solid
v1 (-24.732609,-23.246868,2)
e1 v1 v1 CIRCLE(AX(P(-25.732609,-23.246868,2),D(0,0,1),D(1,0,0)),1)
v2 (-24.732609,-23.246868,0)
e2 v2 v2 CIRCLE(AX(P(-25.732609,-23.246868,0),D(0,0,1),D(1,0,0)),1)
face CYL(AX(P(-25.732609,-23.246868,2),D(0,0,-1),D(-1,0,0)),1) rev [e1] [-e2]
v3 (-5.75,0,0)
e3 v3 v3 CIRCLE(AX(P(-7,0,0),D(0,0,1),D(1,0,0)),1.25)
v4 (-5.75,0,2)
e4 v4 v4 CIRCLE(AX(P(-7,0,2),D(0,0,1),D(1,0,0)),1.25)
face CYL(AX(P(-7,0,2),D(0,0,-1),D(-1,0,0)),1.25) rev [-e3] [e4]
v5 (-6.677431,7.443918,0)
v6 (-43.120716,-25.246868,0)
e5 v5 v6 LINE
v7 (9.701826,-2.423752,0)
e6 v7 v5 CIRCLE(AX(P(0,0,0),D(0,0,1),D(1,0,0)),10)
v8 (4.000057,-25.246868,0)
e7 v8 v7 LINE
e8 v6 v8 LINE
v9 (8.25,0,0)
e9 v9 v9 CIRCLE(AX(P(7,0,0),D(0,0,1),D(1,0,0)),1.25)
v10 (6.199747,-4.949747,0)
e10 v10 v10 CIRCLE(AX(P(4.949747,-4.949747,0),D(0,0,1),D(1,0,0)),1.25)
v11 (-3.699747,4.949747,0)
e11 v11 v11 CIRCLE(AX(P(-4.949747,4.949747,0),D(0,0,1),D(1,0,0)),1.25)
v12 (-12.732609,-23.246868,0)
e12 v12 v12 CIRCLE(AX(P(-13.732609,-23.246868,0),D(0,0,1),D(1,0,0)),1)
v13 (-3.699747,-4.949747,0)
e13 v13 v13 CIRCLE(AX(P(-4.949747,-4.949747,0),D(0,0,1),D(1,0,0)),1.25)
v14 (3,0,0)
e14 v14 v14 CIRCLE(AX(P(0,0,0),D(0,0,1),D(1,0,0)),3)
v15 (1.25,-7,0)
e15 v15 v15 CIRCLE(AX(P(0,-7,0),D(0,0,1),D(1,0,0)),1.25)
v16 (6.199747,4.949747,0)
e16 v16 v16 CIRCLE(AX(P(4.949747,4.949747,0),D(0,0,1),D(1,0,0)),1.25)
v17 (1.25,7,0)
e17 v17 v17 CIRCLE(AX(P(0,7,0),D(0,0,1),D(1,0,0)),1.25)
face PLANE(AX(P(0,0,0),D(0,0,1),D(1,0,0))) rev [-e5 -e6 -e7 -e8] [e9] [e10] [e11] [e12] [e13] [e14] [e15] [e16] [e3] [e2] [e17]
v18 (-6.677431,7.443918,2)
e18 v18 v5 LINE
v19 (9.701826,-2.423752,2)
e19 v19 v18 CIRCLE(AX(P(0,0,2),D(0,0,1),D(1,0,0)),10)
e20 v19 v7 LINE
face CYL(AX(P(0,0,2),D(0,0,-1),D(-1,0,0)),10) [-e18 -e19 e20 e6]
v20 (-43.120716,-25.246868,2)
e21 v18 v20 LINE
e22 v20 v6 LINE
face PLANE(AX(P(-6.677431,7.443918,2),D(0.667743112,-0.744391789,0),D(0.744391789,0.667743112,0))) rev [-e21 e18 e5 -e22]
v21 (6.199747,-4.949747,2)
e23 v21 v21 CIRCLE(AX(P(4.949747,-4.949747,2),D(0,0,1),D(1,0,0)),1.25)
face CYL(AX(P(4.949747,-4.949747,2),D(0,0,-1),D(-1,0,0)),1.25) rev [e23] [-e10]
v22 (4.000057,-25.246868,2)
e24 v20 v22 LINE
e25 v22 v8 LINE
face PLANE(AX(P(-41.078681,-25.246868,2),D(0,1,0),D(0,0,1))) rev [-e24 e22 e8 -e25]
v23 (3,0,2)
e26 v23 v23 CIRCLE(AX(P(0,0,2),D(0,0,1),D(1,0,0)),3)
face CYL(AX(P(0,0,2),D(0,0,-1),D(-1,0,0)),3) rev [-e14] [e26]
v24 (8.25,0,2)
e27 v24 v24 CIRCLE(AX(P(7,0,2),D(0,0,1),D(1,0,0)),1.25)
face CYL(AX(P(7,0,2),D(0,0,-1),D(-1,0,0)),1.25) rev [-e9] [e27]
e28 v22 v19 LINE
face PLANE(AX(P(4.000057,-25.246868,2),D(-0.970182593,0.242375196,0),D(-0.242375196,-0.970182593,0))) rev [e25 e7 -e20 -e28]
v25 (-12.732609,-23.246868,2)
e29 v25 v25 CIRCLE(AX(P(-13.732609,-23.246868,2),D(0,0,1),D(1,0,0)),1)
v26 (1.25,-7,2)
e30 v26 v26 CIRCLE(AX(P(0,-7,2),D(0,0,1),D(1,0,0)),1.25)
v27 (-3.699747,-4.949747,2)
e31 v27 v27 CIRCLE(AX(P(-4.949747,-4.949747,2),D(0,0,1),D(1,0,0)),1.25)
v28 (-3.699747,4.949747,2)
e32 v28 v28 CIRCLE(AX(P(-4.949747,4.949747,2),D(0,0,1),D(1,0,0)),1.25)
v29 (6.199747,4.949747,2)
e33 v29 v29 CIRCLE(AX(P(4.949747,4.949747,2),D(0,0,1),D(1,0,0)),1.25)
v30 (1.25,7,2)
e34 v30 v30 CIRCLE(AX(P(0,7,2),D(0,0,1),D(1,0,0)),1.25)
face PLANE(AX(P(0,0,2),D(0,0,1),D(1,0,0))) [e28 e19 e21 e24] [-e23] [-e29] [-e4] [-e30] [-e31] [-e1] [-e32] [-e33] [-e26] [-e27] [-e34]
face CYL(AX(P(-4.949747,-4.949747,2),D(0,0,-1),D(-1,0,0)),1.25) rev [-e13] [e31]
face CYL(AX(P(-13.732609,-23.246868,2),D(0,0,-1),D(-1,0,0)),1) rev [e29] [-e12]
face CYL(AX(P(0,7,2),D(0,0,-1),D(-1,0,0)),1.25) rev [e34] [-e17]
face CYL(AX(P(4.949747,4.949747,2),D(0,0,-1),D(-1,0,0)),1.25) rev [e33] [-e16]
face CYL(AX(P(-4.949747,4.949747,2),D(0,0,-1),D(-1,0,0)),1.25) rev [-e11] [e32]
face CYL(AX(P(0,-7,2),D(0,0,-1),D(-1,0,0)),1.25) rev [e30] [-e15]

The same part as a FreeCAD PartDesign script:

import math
import FreeCAD as App
import Part
import Sketcher

V = App.Vector

doc = App.newDocument("Part")
body = doc.addObject("PartDesign::Body", "Body")

# Sketch on XY plane
sketch1 = body.newObject("Sketcher::SketchObject", "Sketch")
sketch1.AttachmentSupport = (doc.getObject("XY_Plane"), [""])
sketch1.MapMode = "FlatFace"
sketch1.addGeometry(Part.LineSegment(V(4.000057, -25.246868, 0), V(9.701826, -2.423752, 0)), False)
sketch1.addGeometry(Part.ArcOfCircle(Part.Circle(V(0, 0, 0), V(0, 0, 1), 10), math.radians(-14.026769), math.radians(131.893115)), False)
sketch1.addGeometry(Part.LineSegment(V(-6.677431, 7.443918, 0), V(-43.120716, -25.246868, 0)), False)
sketch1.addGeometry(Part.LineSegment(V(-43.120716, -25.246868, 0), V(4.000057, -25.246868, 0)), False)
sketch1.addGeometry(Part.Circle(V(-25.732609, -23.246868, 0), V(0, 0, 1), 1), False)
sketch1.addGeometry(Part.Circle(V(-13.732609, -23.246868, 0), V(0, 0, 1), 1), False)
sketch1.addGeometry(Part.Circle(V(-4.949747, -4.949747, 0), V(0, 0, 1), 1.25), False)
sketch1.addGeometry(Part.Circle(V(-7, 0, 0), V(0, 0, 1), 1.25), False)
sketch1.addGeometry(Part.Circle(V(0, -7, 0), V(0, 0, 1), 1.25), False)
sketch1.addGeometry(Part.Circle(V(4.949747, -4.949747, 0), V(0, 0, 1), 1.25), False)
sketch1.addGeometry(Part.Circle(V(0, 0, 0), V(0, 0, 1), 3), False)
sketch1.addGeometry(Part.Circle(V(7, 0, 0), V(0, 0, 1), 1.25), False)
sketch1.addGeometry(Part.Circle(V(-4.949747, 4.949747, 0), V(0, 0, 1), 1.25), False)
sketch1.addGeometry(Part.Circle(V(0, 7, 0), V(0, 0, 1), 1.25), False)
sketch1.addGeometry(Part.Circle(V(4.949747, 4.949747, 0), V(0, 0, 1), 1.25), False)
sketch1.addConstraint(Sketcher.Constraint("Tangent", 0, 2, 1, 1))
sketch1.addConstraint(Sketcher.Constraint("Tangent", 1, 2, 2, 1))
sketch1.addConstraint(Sketcher.Constraint("Coincident", 2, 2, 3, 1))
sketch1.addConstraint(Sketcher.Constraint("Coincident", 3, 2, 0, 1))
sketch1.addConstraint(Sketcher.Constraint("Horizontal", 3))
sketch1.addConstraint(Sketcher.Constraint("Coincident", 1, 3, -1, 1))
sketch1.addConstraint(Sketcher.Constraint("Coincident", 10, 3, -1, 1))
sketch1.addConstraint(Sketcher.Constraint("Equal", 4, 5))
sketch1.addConstraint(Sketcher.Constraint("Equal", 6, 7))
sketch1.addConstraint(Sketcher.Constraint("Equal", 7, 8))
sketch1.addConstraint(Sketcher.Constraint("Equal", 8, 9))
sketch1.addConstraint(Sketcher.Constraint("Equal", 9, 11))
sketch1.addConstraint(Sketcher.Constraint("Equal", 11, 12))
sketch1.addConstraint(Sketcher.Constraint("Equal", 12, 13))
sketch1.addConstraint(Sketcher.Constraint("Equal", 13, 14))
sketch1.addConstraint(Sketcher.Constraint("Symmetric", 7, 3, 11, 3, -1, 1))
sketch1.addConstraint(Sketcher.Constraint("Symmetric", 9, 3, 12, 3, -1, 1))
sketch1.addConstraint(Sketcher.Constraint("Symmetric", 8, 3, 13, 3, -1, 1))
sketch1.addConstraint(Sketcher.Constraint("Symmetric", 6, 3, 14, 3, -1, 1))
sketch1.addConstraint(Sketcher.Constraint("Symmetric", 6, 3, 9, 3, -2))
sketch1.addConstraint(Sketcher.Constraint("PointOnObject", 7, 3, -1))
sketch1.addConstraint(Sketcher.Constraint("PointOnObject", 8, 3, -2))
sketch1.addConstraint(Sketcher.Constraint("Horizontal", 4, 3, 5, 3))
sketch1.addConstraint(Sketcher.Constraint("Diameter", 4, 2.0))
sketch1.addConstraint(Sketcher.Constraint("Diameter", 10, 6.0))
sketch1.addConstraint(Sketcher.Constraint("Radius", 1, 10.0))
sketch1.addConstraint(Sketcher.Constraint("Diameter", 6, 2.5))
sketch1.addConstraint(Sketcher.Constraint("DistanceX", 7, 3, -1, 1, 7.0))
sketch1.addConstraint(Sketcher.Constraint("DistanceY", 8, 3, -1, 1, 7.0))
sketch1.addConstraint(Sketcher.Constraint("DistanceX", 4, 3, 5, 3, 12.0))
sketch1.addConstraint(Sketcher.Constraint("DistanceY", 2, 2, 4, 3, 2.0))
sketch1.addConstraint(Sketcher.Constraint("DistanceY", 0, 2, 14, 3, 7.373499))
sketch1.addConstraint(Sketcher.Constraint("Distance", 2, 48.957129))
sketch1.addConstraint(Sketcher.Constraint("DistanceX", 3, 1, 3, 2, 47.120773))
sketch1.addConstraint(Sketcher.Constraint("DistanceX", 4, 3, -1, 1, 25.732609))
sketch1.addConstraint(Sketcher.Constraint("DistanceY", 0, 2, -1, 1, 2.423752))
sketch1.addConstraint(Sketcher.Constraint("DistanceX", 5, 3, 6, 3, 8.782862))
pad1 = body.newObject("PartDesign::Pad", "Pad")
pad1.Profile = sketch1
pad1.Length = 2

doc.recompute()
